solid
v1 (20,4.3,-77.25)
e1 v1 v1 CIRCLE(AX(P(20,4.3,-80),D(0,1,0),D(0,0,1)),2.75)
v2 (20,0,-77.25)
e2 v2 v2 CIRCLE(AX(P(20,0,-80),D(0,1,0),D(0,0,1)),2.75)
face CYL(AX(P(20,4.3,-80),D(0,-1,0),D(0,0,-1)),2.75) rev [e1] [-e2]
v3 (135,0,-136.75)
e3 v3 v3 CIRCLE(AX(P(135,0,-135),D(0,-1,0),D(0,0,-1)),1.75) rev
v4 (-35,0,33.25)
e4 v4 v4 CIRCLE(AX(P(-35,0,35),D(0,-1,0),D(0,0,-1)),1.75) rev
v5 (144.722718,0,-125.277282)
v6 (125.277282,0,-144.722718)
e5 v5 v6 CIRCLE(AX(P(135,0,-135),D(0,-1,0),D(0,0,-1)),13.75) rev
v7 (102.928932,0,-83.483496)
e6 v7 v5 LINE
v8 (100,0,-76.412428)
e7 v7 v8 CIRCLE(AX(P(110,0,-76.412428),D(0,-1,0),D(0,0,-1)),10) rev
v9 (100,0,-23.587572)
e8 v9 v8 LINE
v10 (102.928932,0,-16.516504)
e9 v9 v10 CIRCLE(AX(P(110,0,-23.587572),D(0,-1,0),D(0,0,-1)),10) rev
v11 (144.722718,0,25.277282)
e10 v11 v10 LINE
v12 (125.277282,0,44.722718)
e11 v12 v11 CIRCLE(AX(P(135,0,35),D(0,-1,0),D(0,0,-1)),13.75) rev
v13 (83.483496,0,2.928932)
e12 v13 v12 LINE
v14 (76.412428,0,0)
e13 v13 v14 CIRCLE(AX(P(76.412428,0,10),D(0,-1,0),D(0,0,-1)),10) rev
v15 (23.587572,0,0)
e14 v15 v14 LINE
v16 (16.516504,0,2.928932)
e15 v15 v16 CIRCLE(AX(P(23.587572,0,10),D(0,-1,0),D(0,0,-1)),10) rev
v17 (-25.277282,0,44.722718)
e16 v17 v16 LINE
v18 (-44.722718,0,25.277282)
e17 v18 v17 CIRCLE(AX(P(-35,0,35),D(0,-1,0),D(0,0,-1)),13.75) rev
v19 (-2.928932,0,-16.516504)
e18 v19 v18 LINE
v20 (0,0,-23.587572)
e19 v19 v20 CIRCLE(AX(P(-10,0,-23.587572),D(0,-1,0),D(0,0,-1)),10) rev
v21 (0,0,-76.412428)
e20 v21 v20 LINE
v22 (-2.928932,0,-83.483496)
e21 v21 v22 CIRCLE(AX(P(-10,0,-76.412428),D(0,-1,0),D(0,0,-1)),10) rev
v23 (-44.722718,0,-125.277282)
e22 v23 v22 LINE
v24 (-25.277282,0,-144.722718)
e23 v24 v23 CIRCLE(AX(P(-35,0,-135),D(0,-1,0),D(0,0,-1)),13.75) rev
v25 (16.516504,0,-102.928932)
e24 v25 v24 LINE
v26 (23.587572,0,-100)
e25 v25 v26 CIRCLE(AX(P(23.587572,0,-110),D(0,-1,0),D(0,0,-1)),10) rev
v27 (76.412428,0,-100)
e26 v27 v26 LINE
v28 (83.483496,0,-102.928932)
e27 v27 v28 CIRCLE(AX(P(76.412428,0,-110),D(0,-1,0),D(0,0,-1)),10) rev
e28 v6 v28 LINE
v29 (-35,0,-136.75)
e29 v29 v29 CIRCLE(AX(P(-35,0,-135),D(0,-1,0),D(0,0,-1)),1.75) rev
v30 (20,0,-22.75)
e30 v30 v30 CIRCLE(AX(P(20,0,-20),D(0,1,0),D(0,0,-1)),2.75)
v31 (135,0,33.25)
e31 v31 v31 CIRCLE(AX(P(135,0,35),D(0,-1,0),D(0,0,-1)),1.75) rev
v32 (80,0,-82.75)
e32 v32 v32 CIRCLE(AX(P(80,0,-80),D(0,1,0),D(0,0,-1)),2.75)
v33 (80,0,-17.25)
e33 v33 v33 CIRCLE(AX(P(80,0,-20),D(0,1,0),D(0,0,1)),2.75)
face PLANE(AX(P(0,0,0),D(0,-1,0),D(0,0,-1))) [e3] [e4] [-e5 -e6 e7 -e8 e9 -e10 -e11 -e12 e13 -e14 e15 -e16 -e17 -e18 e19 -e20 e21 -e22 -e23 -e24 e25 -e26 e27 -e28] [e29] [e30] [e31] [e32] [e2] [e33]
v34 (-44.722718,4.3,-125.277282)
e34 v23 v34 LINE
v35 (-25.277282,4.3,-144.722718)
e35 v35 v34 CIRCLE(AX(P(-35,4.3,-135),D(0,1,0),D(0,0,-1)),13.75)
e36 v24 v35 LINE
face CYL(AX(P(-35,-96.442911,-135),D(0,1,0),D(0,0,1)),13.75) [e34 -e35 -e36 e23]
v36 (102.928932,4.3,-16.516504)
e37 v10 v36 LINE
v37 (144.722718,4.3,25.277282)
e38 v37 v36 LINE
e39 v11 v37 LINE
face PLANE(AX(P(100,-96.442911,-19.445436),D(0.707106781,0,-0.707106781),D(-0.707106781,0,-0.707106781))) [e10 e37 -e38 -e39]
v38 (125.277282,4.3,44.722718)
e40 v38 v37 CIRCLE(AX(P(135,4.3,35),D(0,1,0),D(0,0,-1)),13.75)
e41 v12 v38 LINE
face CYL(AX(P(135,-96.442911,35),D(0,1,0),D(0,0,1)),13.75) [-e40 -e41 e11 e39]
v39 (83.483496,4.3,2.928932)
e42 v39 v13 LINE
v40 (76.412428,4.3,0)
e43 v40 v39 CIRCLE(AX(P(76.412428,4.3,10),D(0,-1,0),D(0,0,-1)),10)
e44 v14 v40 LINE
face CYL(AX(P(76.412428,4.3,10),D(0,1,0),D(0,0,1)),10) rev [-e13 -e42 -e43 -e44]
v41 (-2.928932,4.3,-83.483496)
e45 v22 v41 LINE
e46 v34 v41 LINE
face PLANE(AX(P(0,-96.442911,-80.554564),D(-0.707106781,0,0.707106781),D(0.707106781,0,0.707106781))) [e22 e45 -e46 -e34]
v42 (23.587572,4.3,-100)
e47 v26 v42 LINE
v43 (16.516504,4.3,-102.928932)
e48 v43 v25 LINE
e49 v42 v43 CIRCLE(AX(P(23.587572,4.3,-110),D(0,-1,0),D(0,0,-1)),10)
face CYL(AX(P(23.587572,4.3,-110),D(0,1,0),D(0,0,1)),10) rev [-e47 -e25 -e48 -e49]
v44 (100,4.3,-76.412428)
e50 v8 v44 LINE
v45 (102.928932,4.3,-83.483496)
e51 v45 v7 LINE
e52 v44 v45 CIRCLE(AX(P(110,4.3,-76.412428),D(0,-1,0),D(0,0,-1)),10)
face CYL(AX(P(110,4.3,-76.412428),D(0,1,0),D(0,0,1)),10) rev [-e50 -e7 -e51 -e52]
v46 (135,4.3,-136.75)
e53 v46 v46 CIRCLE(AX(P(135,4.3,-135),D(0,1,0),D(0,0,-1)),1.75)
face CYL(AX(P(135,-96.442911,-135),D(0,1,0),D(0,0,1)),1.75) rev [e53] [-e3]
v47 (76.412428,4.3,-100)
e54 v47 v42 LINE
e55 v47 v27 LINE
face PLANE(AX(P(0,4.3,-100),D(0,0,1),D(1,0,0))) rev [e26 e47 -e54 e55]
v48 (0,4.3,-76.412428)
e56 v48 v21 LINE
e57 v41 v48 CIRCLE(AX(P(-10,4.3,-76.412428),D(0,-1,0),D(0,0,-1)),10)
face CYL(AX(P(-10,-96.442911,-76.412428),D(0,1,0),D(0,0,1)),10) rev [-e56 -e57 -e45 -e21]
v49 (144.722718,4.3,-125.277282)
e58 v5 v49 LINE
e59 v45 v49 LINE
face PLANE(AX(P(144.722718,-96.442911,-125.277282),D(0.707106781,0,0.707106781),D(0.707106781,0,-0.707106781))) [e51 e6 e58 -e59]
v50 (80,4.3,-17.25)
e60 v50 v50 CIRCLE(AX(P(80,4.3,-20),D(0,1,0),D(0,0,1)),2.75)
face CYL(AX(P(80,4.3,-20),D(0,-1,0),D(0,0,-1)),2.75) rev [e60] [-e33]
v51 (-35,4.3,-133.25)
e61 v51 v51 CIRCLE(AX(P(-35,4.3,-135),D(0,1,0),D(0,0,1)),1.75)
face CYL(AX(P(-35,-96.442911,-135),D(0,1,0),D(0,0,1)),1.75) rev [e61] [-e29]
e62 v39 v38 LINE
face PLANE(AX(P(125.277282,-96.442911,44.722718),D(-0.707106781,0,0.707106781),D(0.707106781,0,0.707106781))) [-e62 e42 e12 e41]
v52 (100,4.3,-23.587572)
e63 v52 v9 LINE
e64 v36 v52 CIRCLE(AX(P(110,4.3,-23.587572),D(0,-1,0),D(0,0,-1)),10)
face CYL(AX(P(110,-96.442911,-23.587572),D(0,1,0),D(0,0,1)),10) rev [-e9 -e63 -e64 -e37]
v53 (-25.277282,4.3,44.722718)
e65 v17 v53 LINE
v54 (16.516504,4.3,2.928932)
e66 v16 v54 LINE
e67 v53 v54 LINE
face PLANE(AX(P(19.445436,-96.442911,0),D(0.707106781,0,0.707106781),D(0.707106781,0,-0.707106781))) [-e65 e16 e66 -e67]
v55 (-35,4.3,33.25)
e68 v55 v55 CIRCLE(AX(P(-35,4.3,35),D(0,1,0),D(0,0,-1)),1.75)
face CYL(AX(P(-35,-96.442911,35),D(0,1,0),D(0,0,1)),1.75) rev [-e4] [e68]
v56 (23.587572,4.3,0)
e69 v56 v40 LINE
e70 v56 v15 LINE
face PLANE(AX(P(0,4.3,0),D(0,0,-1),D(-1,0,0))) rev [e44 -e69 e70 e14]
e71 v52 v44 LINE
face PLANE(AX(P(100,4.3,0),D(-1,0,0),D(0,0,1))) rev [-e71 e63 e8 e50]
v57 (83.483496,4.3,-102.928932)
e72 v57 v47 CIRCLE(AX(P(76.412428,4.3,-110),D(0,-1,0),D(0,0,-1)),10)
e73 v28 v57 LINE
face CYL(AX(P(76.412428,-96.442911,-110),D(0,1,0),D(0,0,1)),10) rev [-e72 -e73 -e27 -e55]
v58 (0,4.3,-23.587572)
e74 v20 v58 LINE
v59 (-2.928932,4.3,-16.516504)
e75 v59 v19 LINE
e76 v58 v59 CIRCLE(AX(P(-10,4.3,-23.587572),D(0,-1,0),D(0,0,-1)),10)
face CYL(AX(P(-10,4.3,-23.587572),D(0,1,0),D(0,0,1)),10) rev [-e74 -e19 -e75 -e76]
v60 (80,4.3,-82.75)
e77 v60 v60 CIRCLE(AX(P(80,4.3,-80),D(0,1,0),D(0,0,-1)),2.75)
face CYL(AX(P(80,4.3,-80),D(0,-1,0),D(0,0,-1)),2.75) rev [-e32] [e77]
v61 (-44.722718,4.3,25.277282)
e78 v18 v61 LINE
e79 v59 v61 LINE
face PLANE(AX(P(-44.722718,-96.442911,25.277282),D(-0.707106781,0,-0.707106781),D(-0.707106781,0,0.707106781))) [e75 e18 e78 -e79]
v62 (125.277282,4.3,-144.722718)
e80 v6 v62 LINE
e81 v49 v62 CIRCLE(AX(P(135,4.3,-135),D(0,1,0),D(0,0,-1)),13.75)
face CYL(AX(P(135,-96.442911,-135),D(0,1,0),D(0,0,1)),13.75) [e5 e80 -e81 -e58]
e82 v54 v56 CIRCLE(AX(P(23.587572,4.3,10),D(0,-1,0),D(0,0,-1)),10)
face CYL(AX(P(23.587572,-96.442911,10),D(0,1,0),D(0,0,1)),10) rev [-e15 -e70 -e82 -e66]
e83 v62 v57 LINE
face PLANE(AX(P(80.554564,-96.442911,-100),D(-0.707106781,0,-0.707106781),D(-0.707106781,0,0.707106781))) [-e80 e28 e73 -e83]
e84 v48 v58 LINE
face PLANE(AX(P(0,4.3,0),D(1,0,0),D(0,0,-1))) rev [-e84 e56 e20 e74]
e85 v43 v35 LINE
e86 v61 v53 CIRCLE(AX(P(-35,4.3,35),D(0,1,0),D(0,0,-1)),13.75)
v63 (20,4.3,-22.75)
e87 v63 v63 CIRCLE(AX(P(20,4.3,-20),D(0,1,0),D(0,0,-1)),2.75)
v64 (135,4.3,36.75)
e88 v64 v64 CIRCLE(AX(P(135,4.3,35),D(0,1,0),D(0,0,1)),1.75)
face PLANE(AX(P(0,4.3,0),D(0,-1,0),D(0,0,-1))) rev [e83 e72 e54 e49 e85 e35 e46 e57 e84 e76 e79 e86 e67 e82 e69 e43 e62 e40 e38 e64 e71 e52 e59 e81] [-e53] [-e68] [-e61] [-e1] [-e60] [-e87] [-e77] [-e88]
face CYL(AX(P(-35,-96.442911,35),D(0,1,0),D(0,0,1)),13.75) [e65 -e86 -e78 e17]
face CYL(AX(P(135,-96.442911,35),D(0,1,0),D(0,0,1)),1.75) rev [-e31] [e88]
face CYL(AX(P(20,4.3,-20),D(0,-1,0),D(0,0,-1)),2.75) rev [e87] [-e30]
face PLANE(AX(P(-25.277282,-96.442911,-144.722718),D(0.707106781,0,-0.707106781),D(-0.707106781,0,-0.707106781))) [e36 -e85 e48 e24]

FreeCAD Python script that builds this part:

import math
import FreeCAD as App
import Part
import Sketcher
from FreeCAD import Vector
Q = App.Units.Quantity


def edges_at(feature, points):
    """Names of the edges that pass closest to the given points."""
    edges = feature.Shape.Edges
    near = lambda p: min(range(len(edges)), key=lambda i: edges[i].distToShape(Part.Vertex(*p))[0])
    return sorted({f"Edge{near(p) + 1}" for p in points})


def add_polygon(sketch, points):
    """Adds a closed chain of lines whose ends are joined by coincident constraints."""
    first, n = sketch.GeometryCount, len(points)
    for a, b in zip(points, points[1:] + points[:1]):
        sketch.addGeometry(Part.LineSegment(App.Vector(*a, 0), App.Vector(*b, 0)), False)
    for i in range(n):
        sketch.addConstraint(Sketcher.Constraint("Coincident", first + i, 2, first + (i + 1) % n, 1))

doc = App.newDocument("Part")
params = doc.addObject("Spreadsheet::Sheet", "Params")
for row, (alias, value) in enumerate([
    ("sketch1_diameter", "5.5 mm"),
    ("sketch1_width", "100 mm"),
    ("pad1_length", "4.3 mm"),
    ("sketch2_diameter", "3.5 mm"),
    ("sketch2_radius", "13.75 mm"),
    ("pad2_length", "4.3 mm"),
    ("fillet_radius", "10 mm"),
], start=1):
    params.set(f"A{row}", alias)
    params.set(f"B{row}", "=" + value)
    params.setAlias(f"B{row}", alias)

body = doc.addObject("PartDesign::Body", "Body")

sketch1 = body.newObject("Sketcher::SketchObject", "Sketch")
sketch1.AttachmentSupport = (doc.getObject("XZ_Plane"), [""])
sketch1.MapMode = "FlatFace"
add_polygon(sketch1, [(0, -100), (0, 0), (100, 0), (100, -100)])
sketch1.addGeometry(Part.Circle(Vector(20, -20, 0), Vector(0, 0, 1), 2.8), False)
sketch1.addGeometry(Part.Circle(Vector(80, -20, 0), Vector(0, 0, 1), 2.8), False)
sketch1.addGeometry(Part.Circle(Vector(20, -80, 0), Vector(0, 0, 1), 2.8), False)
sketch1.addGeometry(Part.Circle(Vector(80, -80, 0), Vector(0, 0, 1), 2.8), False)
sketch1.addConstraint(Sketcher.Constraint("Vertical", 0))
sketch1.addConstraint(Sketcher.Constraint("Horizontal", 1))
sketch1.addConstraint(Sketcher.Constraint("Vertical", 2))
sketch1.addConstraint(Sketcher.Constraint("Horizontal", 3))
sketch1.addConstraint(Sketcher.Constraint("Coincident", 0, 2, -1, 1))
sketch1.addConstraint(Sketcher.Constraint("Equal", 4, 5))
sketch1.addConstraint(Sketcher.Constraint("Equal", 5, 6))
sketch1.addConstraint(Sketcher.Constraint("Equal", 6, 7))
sketch1.addConstraint(Sketcher.Constraint("Horizontal", 4, 3, 5, 3))
sketch1.addConstraint(Sketcher.Constraint("Horizontal", 6, 3, 7, 3))
sketch1.addConstraint(Sketcher.Constraint("Vertical", 4, 3, 6, 3))
sketch1.addConstraint(Sketcher.Constraint("Vertical", 5, 3, 7, 3))
sketch1.addConstraint(Sketcher.Constraint("Equal", 3, 0))
sketch1.addConstraint(Sketcher.Constraint("Diameter", 4, Q("5.5 mm")))
sketch1.addConstraint(Sketcher.Constraint("DistanceX", 1, 1, 1, 2, Q("100 mm")))
sketch1.addConstraint(Sketcher.Constraint("DistanceX", -1, 1, 4, 3, Q("20 mm")))
sketch1.addConstraint(Sketcher.Constraint("DistanceY", 4, 3, -1, 1, Q("20 mm")))
sketch1.addConstraint(Sketcher.Constraint("DistanceX", -1, 1, 5, 3, Q("80 mm")))
sketch1.addConstraint(Sketcher.Constraint("DistanceY", 6, 3, -1, 1, Q("80 mm")))
sketch1.setExpression("Constraints[17]", "Params.sketch1_diameter")
sketch1.setExpression("Constraints[18]", "Params.sketch1_width")
pad1 = body.newObject("PartDesign::Pad", "Pad")
pad1.Profile = sketch1
pad1.setExpression("Length", "Params.pad1_length")
pad1.Reversed = True

sketch2 = body.newObject("Sketcher::SketchObject", "Sketch001")
sketch2.AttachmentSupport = (doc.getObject("XZ_Plane"), [""])
sketch2.MapMode = "FlatFace"
sketch2.AttachmentOffset = App.Placement(Vector(0, 0, -4.3), App.Rotation())
sketch2.addGeometry(Part.LineSegment(Vector(-44.7, -125.3, 0), Vector(0, -80.6, 0)), False)
sketch2.addGeometry(Part.LineSegment(Vector(0, -80.6, 0), Vector(0, -100, 0)), False)
sketch2.addGeometry(Part.LineSegment(Vector(0, -100, 0), Vector(19.4, -100, 0)), False)
sketch2.addGeometry(Part.LineSegment(Vector(19.4, -100, 0), Vector(-25.3, -144.7, 0)), False)
sketch2.addGeometry(Part.ArcOfCircle(Part.Circle(Vector(-35, -135, 0), Vector(0, 0, 1), 13.8), math.radians(135), math.radians(315)), False)
sketch2.addGeometry(Part.Circle(Vector(-35, -135, 0), Vector(0, 0, 1), 1.8), False)
sketch2.addGeometry(Part.LineSegment(Vector(100, -100, 0), Vector(100, -80.6, 0)), False)
sketch2.addGeometry(Part.LineSegment(Vector(100, -80.6, 0), Vector(144.7, -125.3, 0)), False)
sketch2.addGeometry(Part.ArcOfCircle(Part.Circle(Vector(135, -135, 0), Vector(0, 0, 1), 13.8), math.radians(-135), math.radians(45)), False)
sketch2.addGeometry(Part.LineSegment(Vector(125.3, -144.7, 0), Vector(80.6, -100, 0)), False)
sketch2.addGeometry(Part.LineSegment(Vector(80.6, -100, 0), Vector(100, -100, 0)), False)
sketch2.addGeometry(Part.Circle(Vector(135, -135, 0), Vector(0, 0, 1), 1.8), False)
sketch2.addGeometry(Part.LineSegment(Vector(100, 0, 0), Vector(80.6, 0, 0)), False)
sketch2.addGeometry(Part.LineSegment(Vector(80.6, 0, 0), Vector(125.3, 44.7, 0)), False)
sketch2.addGeometry(Part.ArcOfCircle(Part.Circle(Vector(135, 35, 0), Vector(0, 0, 1), 13.8), math.radians(-45), math.radians(135)), False)
sketch2.addGeometry(Part.LineSegment(Vector(144.7, 25.3, 0), Vector(100, -19.4, 0)), False)
sketch2.addGeometry(Part.LineSegment(Vector(100, -19.4, 0), Vector(100, 0, 0)), False)
sketch2.addGeometry(Part.Circle(Vector(135, 35, 0), Vector(0, 0, 1), 1.8), False)
sketch2.addGeometry(Part.LineSegment(Vector(0, 0, 0), Vector(0, -19.4, 0)), False)
sketch2.addGeometry(Part.LineSegment(Vector(0, -19.4, 0), Vector(-44.7, 25.3, 0)), False)
sketch2.addGeometry(Part.ArcOfCircle(Part.Circle(Vector(-35, 35, 0), Vector(0, 0, 1), 13.8), math.radians(45), math.radians(225)), False)
sketch2.addGeometry(Part.LineSegment(Vector(-25.3, 44.7, 0), Vector(19.4, 0, 0)), False)
sketch2.addGeometry(Part.LineSegment(Vector(19.4, 0, 0), Vector(0, 0, 0)), False)
sketch2.addGeometry(Part.Circle(Vector(-35, 35, 0), Vector(0, 0, 1), 1.8), False)
sketch2.addConstraint(Sketcher.Constraint("Coincident", 0, 2, 1, 1))
sketch2.addConstraint(Sketcher.Constraint("Coincident", 1, 2, 2, 1))
sketch2.addConstraint(Sketcher.Constraint("Coincident", 2, 2, 3, 1))
sketch2.addConstraint(Sketcher.Constraint("Tangent", 3, 2, 4, 2))
sketch2.addConstraint(Sketcher.Constraint("Tangent", 4, 1, 0, 1))
sketch2.addConstraint(Sketcher.Constraint("Coincident", 6, 2, 7, 1))
sketch2.addConstraint(Sketcher.Constraint("Tangent", 7, 2, 8, 2))
sketch2.addConstraint(Sketcher.Constraint("Tangent", 8, 1, 9, 1))
sketch2.addConstraint(Sketcher.Constraint("Coincident", 9, 2, 10, 1))
sketch2.addConstraint(Sketcher.Constraint("Coincident", 10, 2, 6, 1))
sketch2.addConstraint(Sketcher.Constraint("Coincident", 12, 2, 13, 1))
sketch2.addConstraint(Sketcher.Constraint("Tangent", 13, 2, 14, 2))
sketch2.addConstraint(Sketcher.Constraint("Tangent", 14, 1, 15, 1))
sketch2.addConstraint(Sketcher.Constraint("Coincident", 15, 2, 16, 1))
sketch2.addConstraint(Sketcher.Constraint("Coincident", 16, 2, 12, 1))
sketch2.addConstraint(Sketcher.Constraint("Coincident", 18, 2, 19, 1))
sketch2.addConstraint(Sketcher.Constraint("Tangent", 19, 2, 20, 2))
sketch2.addConstraint(Sketcher.Constraint("Tangent", 20, 1, 21, 1))
sketch2.addConstraint(Sketcher.Constraint("Coincident", 21, 2, 22, 1))
sketch2.addConstraint(Sketcher.Constraint("Coincident", 22, 2, 18, 1))
sketch2.addConstraint(Sketcher.Constraint("Vertical", 1))
sketch2.addConstraint(Sketcher.Constraint("Horizontal", 2))
sketch2.addConstraint(Sketcher.Constraint("Vertical", 6))
sketch2.addConstraint(Sketcher.Constraint("Horizontal", 10))
sketch2.addConstraint(Sketcher.Constraint("Horizontal", 12))
sketch2.addConstraint(Sketcher.Constraint("Vertical", 16))
sketch2.addConstraint(Sketcher.Constraint("Vertical", 18))
sketch2.addConstraint(Sketcher.Constraint("Horizontal", 22))
sketch2.addConstraint(Sketcher.Constraint("Coincident", 22, 2, -1, 1))
sketch2.addConstraint(Sketcher.Constraint("Coincident", 5, 3, 4, 3))
sketch2.addConstraint(Sketcher.Constraint("Coincident", 11, 3, 8, 3))
sketch2.addConstraint(Sketcher.Constraint("Coincident", 17, 3, 14, 3))
sketch2.addConstraint(Sketcher.Constraint("Coincident", 23, 3, 20, 3))
sketch2.addConstraint(Sketcher.Constraint("Equal", 4, 8))
sketch2.addConstraint(Sketcher.Constraint("Equal", 5, 11))
sketch2.addConstraint(Sketcher.Constraint("Equal", 8, 14))
sketch2.addConstraint(Sketcher.Constraint("Equal", 11, 17))
sketch2.addConstraint(Sketcher.Constraint("Equal", 14, 20))
sketch2.addConstraint(Sketcher.Constraint("Equal", 17, 23))
sketch2.addConstraint(Sketcher.Constraint("PointOnObject", 0, 2, -2))
sketch2.addConstraint(Sketcher.Constraint("PointOnObject", 12, 2, -1))
sketch2.addConstraint(Sketcher.Constraint("Parallel", 0, 3))
sketch2.addConstraint(Sketcher.Constraint("Perpendicular", 3, 7))
sketch2.addConstraint(Sketcher.Constraint("Parallel", 7, 9))
sketch2.addConstraint(Sketcher.Constraint("Perpendicular", 9, 13))
sketch2.addConstraint(Sketcher.Constraint("Parallel", 13, 15))
sketch2.addConstraint(Sketcher.Constraint("Perpendicular", 15, 19))
sketch2.addConstraint(Sketcher.Constraint("Parallel", 19, 21))
sketch2.addConstraint(Sketcher.Constraint("Horizontal", 5, 3, 8, 3))
sketch2.addConstraint(Sketcher.Constraint("Horizontal", 17, 3, 20, 3))
sketch2.addConstraint(Sketcher.Constraint("Horizontal", 0, 2, 6, 2))
sketch2.addConstraint(Sketcher.Constraint("Horizontal", 4, 1, 7, 2))
sketch2.addConstraint(Sketcher.Constraint("Horizontal", 2, 2, 9, 2))
sketch2.addConstraint(Sketcher.Constraint("Horizontal", 15, 2, 18, 2))
sketch2.addConstraint(Sketcher.Constraint("Vertical", 11, 3, 14, 3))
sketch2.addConstraint(Sketcher.Constraint("Vertical", 5, 3, 20, 3))
sketch2.addConstraint(Sketcher.Constraint("Vertical", 9, 2, 12, 2))
sketch2.addConstraint(Sketcher.Constraint("Equal", 22, 1))
sketch2.addConstraint(Sketcher.Constraint("Diameter", 5, Q("3.5 mm")))
sketch2.addConstraint(Sketcher.Constraint("Radius", 4, Q("13.75 mm")))
sketch2.addConstraint(Sketcher.Constraint("DistanceX", 4, 3, -1, 1, Q("35 mm")))
sketch2.addConstraint(Sketcher.Constraint("DistanceY", 4, 3, -1, 1, Q("135 mm")))
sketch2.addConstraint(Sketcher.Constraint("DistanceX", -1, 1, 8, 3, Q("135 mm")))
sketch2.setExpression("Constraints[58]", "Params.sketch2_diameter")
sketch2.setExpression("Constraints[59]", "Params.sketch2_radius")
pad2 = body.newObject("PartDesign::Pad", "Pad001")
pad2.Profile = sketch2
pad2.setExpression("Length", "Params.pad2_length")
doc.recompute()

fillet = body.newObject("PartDesign::Fillet", "Fillet")
fillet.Base = (pad2, edges_at(pad2, [
    (0, 2.15, -80.555),
    (19.445, 2.15, -100),
    (80.555, 2.15, -100),
    (100, 2.15, -80.555),
    (100, 2.15, -19.445),
    (80.555, 2.15, 0),
    (19.445, 2.15, 0),
    (0, 2.15, -19.445),
]))
fillet.setExpression("Radius", "Params.fillet_radius")

doc.recompute()
